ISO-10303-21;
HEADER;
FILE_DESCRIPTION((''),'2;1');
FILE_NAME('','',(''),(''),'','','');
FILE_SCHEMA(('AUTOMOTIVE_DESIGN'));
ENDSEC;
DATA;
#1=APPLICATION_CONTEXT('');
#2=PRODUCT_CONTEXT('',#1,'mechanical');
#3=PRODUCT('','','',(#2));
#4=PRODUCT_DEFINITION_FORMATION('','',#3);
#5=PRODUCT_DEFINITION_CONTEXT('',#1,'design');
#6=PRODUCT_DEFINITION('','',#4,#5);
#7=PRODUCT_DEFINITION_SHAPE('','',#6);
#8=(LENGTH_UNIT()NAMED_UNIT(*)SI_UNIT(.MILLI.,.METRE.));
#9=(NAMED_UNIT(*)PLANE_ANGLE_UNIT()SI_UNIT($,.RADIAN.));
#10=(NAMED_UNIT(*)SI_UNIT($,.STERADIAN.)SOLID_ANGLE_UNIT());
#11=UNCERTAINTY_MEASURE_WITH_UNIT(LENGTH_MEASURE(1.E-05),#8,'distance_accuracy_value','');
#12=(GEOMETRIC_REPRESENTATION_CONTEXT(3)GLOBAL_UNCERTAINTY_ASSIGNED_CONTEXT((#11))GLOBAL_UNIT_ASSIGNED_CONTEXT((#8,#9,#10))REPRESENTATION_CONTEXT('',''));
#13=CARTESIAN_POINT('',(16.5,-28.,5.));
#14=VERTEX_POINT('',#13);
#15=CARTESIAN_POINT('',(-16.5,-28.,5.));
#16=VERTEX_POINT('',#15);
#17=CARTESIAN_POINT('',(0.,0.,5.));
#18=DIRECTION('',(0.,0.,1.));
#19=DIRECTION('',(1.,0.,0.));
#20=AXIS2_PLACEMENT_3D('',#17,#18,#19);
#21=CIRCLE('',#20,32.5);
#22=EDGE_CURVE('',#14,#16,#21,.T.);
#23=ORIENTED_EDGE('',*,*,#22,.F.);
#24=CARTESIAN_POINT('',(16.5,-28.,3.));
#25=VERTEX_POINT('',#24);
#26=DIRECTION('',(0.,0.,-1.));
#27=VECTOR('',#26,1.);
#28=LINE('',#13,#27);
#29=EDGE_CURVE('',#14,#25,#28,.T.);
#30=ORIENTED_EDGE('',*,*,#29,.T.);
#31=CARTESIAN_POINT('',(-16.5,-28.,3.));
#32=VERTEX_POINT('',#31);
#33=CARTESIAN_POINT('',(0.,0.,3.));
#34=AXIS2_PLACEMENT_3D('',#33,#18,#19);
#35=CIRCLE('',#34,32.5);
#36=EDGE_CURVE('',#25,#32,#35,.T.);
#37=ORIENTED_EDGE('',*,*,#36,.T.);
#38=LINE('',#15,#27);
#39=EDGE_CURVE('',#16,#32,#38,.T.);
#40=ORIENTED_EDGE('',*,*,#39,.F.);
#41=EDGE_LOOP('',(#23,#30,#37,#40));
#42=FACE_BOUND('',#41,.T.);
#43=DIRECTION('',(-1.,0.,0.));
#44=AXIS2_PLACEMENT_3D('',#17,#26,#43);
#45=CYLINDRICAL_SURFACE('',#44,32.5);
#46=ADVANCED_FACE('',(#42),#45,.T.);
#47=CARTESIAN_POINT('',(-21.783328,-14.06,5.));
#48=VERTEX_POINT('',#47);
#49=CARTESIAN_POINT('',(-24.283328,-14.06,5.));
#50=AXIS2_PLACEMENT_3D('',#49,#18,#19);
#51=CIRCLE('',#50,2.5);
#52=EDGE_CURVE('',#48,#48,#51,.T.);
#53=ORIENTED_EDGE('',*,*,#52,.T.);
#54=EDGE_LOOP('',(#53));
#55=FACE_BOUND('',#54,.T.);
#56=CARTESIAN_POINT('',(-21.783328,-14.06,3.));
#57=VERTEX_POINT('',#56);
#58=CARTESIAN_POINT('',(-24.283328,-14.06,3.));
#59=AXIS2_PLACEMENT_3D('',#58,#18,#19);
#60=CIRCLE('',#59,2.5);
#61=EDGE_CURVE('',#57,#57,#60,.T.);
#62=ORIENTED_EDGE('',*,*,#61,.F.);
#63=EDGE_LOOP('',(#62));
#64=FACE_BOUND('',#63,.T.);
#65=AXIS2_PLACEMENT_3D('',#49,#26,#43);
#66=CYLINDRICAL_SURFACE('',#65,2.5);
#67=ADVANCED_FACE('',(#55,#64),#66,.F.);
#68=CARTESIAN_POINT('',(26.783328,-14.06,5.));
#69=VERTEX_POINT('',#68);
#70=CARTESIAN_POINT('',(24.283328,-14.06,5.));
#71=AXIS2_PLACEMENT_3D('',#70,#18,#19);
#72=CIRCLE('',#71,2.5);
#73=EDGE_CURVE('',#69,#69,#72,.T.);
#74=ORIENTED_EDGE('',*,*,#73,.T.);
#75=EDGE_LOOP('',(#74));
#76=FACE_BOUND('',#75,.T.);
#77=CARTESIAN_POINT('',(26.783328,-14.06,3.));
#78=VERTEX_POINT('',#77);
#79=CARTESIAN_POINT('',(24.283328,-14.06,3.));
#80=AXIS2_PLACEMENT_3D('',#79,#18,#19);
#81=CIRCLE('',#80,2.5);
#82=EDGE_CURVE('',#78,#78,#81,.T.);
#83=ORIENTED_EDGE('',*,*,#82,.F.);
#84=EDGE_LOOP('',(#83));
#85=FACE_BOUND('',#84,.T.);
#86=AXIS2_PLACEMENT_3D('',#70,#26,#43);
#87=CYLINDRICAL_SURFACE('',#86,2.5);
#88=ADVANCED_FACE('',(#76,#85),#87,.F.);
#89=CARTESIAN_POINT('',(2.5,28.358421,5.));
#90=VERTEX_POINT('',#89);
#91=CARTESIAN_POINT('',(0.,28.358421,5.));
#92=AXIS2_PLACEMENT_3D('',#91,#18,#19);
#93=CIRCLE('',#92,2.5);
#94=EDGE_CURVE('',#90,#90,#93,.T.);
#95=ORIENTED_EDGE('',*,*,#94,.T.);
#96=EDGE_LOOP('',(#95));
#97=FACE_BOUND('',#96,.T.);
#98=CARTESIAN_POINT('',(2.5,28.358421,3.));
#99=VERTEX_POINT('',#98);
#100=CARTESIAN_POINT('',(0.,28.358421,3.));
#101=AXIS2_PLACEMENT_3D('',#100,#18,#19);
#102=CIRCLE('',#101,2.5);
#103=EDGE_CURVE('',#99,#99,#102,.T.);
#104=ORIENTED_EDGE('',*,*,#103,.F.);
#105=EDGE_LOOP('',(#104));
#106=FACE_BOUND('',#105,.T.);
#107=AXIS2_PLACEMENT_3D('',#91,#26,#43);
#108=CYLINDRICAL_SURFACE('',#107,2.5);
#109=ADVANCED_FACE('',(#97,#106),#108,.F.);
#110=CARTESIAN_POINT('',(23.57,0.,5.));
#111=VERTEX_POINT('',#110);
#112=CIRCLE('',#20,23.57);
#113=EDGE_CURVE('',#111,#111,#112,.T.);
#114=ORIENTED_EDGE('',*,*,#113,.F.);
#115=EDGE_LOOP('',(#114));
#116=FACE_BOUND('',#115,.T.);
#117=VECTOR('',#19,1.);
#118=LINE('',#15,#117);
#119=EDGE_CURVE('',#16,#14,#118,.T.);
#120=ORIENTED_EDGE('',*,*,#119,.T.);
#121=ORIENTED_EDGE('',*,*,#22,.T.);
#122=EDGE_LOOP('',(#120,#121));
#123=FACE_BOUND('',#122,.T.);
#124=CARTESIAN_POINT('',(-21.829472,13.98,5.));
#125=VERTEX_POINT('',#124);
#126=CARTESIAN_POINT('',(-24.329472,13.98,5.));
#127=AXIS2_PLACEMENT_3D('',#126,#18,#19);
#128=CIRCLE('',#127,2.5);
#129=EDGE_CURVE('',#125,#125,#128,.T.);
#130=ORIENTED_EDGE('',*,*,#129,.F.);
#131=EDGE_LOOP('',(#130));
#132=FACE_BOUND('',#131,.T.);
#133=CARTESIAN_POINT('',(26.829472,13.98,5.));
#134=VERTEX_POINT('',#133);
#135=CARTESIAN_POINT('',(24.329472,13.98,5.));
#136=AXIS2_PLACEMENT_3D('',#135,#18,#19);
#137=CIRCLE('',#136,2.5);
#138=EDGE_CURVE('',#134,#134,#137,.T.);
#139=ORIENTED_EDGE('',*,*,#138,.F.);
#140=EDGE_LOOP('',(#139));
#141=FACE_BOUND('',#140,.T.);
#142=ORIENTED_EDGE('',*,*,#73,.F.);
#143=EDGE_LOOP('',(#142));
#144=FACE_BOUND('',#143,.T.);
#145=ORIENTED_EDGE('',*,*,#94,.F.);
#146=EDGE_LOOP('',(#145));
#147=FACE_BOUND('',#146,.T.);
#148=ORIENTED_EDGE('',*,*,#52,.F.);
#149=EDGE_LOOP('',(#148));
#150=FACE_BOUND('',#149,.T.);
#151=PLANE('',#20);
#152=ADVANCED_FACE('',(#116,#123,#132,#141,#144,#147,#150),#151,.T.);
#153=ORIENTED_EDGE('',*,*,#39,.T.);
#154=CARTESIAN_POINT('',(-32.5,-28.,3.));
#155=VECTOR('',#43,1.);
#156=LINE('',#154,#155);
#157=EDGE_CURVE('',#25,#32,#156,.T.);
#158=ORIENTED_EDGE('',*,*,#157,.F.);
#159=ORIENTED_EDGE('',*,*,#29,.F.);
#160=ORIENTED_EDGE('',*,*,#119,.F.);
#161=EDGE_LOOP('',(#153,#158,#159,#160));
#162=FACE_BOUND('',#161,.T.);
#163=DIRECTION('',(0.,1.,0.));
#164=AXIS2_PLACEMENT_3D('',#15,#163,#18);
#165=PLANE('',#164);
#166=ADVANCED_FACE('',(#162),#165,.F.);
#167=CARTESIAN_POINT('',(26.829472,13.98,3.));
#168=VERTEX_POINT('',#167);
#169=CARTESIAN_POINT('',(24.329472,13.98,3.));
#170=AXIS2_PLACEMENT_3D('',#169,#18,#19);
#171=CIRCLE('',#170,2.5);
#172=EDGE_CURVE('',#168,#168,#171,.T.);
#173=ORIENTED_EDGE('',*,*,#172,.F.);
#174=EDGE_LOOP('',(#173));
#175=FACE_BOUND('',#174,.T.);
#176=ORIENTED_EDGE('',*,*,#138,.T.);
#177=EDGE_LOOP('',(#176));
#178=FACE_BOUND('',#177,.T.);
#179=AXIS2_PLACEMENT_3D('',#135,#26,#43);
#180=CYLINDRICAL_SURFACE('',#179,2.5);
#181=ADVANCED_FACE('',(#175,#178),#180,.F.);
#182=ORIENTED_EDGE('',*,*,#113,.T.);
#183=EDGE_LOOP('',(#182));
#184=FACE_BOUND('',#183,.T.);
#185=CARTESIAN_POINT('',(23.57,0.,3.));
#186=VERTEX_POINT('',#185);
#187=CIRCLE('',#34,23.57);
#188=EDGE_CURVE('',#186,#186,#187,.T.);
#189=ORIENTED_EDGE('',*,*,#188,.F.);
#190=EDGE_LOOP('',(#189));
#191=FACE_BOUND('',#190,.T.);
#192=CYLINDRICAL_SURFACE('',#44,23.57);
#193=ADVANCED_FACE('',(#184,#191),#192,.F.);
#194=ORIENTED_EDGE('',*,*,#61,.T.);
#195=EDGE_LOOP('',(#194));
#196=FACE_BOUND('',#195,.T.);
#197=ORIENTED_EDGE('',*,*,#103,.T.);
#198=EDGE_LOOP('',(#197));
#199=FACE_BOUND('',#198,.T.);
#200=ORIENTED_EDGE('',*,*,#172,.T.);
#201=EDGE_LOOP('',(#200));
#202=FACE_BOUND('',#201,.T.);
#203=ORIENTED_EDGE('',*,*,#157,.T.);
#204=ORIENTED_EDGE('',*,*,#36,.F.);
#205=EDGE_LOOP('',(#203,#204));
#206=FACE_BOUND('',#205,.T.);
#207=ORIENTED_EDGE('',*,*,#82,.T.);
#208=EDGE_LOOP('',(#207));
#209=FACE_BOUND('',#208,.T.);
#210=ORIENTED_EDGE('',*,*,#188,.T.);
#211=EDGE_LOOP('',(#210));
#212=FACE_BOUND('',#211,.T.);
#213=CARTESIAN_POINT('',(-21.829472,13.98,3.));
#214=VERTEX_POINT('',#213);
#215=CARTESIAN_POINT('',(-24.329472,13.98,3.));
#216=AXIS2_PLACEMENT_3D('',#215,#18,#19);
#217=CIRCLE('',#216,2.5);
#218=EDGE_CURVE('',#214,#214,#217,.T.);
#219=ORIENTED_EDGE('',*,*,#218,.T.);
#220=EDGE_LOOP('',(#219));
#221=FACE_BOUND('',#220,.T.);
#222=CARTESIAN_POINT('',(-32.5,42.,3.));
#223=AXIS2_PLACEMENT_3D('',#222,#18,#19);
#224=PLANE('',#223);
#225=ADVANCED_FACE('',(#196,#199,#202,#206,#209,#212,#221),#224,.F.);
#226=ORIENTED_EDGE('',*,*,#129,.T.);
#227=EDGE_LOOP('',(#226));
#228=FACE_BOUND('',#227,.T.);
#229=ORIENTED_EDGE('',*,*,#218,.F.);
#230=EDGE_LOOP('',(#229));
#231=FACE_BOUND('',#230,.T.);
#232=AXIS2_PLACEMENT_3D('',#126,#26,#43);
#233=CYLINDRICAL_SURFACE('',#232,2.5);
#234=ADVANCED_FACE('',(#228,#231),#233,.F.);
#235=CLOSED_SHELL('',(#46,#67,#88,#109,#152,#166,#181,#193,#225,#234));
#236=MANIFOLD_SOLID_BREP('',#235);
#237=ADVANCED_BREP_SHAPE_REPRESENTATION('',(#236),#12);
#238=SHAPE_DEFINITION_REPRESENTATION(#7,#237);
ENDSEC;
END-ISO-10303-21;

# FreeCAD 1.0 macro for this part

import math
import FreeCAD as App
import Part
import Sketcher
from FreeCAD import Vector
Q = App.Units.Quantity

doc = App.newDocument("Part")
body = doc.addObject("PartDesign::Body", "Body")

sketch1 = body.newObject("Sketcher::SketchObject", "Sketch")
sketch1.AttachmentSupport = (doc.getObject("XY_Plane"), [""])
sketch1.MapMode = "FlatFace"
sketch1.addGeometry([
    Part.LineSegment(Vector(-16.5, -28, 0), Vector(16.5, -28, 0)),
    Part.ArcOfCircle(Part.Circle(Vector(0, 0, 0), Vector(0, 0, 1), 32.5), math.radians(-59.489763), math.radians(239.489763)),
    Part.Circle(Vector(-24.283328, -14.06, 0), Vector(0, 0, 1), 2.5),
    Part.Circle(Vector(0, 0, 0), Vector(0, 0, 1), 23.57),
    Part.Circle(Vector(24.283328, -14.06, 0), Vector(0, 0, 1), 2.5),
    Part.Circle(Vector(-24.329472, 13.98, 0), Vector(0, 0, 1), 2.5),
    Part.Circle(Vector(0, 28.358421, 0), Vector(0, 0, 1), 2.5),
    Part.Circle(Vector(24.329472, 13.98, 0), Vector(0, 0, 1), 2.5),
], False)
sketch1.addConstraint([
    Sketcher.Constraint("Coincident", 0, 1, 1, 2),
    Sketcher.Constraint("Coincident", 1, 1, 0, 2),
    Sketcher.Constraint("Horizontal", 0),
    Sketcher.Constraint("Coincident", 1, 3, -1, 1),
    Sketcher.Constraint("Coincident", 3, 3, -1, 1),
    Sketcher.Constraint("Equal", 2, 4),
    Sketcher.Constraint("Equal", 4, 5),
    Sketcher.Constraint("Equal", 5, 6),
    Sketcher.Constraint("Equal", 6, 7),
    Sketcher.Constraint("Symmetric", 2, 3, 4, 3, -2),
    Sketcher.Constraint("Symmetric", 5, 3, 7, 3, -2),
    Sketcher.Constraint("PointOnObject", 6, 3, -2),
    Sketcher.Constraint("Diameter", 2, Q("5 mm")),
    Sketcher.Constraint("Radius", 1, Q("32.5 mm")),
    Sketcher.Constraint("Diameter", 3, Q("47.14 mm")),
    Sketcher.Constraint("DistanceX", 0, 1, 0, 2, Q("33 mm")),
    Sketcher.Constraint("DistanceY", 2, 3, -1, 1, Q("14.06 mm")),
    Sketcher.Constraint("DistanceY", -1, 1, 5, 3, Q("13.98 mm")),
    Sketcher.Constraint("DistanceX", 5, 3, 4, 3, Q("48.612799 mm")),
    Sketcher.Constraint("DistanceX", 5, 3, -1, 1, Q("24.329472 mm")),
    Sketcher.Constraint("DistanceY", -1, 1, 6, 3, Q("28.358421 mm")),
])
pad1 = body.newObject("PartDesign::Pad", "Pad")
pad1.Profile = sketch1
pad1.Length = 5

sketch2 = body.newObject("Sketcher::SketchObject", "Sketch001")
sketch2.AttachmentSupport = (doc.getObject("XZ_Plane"), [""])
sketch2.MapMode = "FlatFace"
sketch2.AttachmentOffset = App.Placement(Vector(0, 0, 28), App.Rotation())
sketch2.addGeometry([
    Part.LineSegment(Vector(32.5, 0, 0), Vector(32.5, 3, 0)),
    Part.LineSegment(Vector(32.5, 3, 0), Vector(-32.5, 3, 0)),
    Part.LineSegment(Vector(-32.5, 3, 0), Vector(-32.5, 0, 0)),
    Part.LineSegment(Vector(-32.5, 0, 0), Vector(32.5, 0, 0)),
], False)
sketch2.addConstraint([
    Sketcher.Constraint("Coincident", 0, 2, 1, 1),
    Sketcher.Constraint("Coincident", 1, 2, 2, 1),
    Sketcher.Constraint("Coincident", 2, 2, 3, 1),
    Sketcher.Constraint("Coincident", 3, 2, 0, 1),
    Sketcher.Constraint("Vertical", 0),
    Sketcher.Constraint("Horizontal", 1),
    Sketcher.Constraint("Vertical", 2),
    Sketcher.Constraint("Horizontal", 3),
    Sketcher.Constraint("Symmetric", 2, 2, 3, 2, -1, 1),
    Sketcher.Constraint("DistanceX", 1, 2, 1, 1, Q("65 mm")),
    Sketcher.Constraint("DistanceY", 0, 1, 0, 2, Q("3 mm")),
])
pocket1 = body.newObject("PartDesign::Pocket", "Pocket")
pocket1.Profile = sketch2
pocket1.Length = 70

doc.recompute()
